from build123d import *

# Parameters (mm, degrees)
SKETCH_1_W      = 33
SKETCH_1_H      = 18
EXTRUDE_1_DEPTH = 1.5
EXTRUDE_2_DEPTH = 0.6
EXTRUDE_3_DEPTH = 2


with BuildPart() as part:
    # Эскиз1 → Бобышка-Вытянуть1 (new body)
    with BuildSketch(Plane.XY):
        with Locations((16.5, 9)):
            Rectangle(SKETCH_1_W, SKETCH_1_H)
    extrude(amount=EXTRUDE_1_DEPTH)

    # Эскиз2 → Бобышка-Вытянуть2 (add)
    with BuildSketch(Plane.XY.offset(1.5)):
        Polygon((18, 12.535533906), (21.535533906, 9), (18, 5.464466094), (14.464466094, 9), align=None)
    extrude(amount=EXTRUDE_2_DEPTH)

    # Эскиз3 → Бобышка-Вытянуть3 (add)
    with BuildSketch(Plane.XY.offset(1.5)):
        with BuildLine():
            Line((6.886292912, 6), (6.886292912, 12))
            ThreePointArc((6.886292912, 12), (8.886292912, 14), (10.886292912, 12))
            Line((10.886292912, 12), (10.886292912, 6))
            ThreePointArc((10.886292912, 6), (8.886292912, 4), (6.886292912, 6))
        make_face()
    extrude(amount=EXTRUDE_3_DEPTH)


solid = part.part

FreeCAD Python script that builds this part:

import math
import FreeCAD as App
import Part
import Sketcher
from FreeCAD import Vector

doc = App.newDocument("Part")
params = doc.addObject("Spreadsheet::Sheet", "Params")
for row, (alias, value) in enumerate([
    ("sketch1_width", "33 mm"),
    ("sketch1_height", "18 mm"),
    ("pad1_length", "1.5 mm"),
    ("sketch2_length", "5 mm"),
    ("pad2_length", "0.6 mm"),
    ("sketch3_radius", "2 mm"),
    ("sketch3_height", "6 mm"),
    ("pad3_length", "2 mm"),
], start=1):
    params.set(f"A{row}", alias)
    params.set(f"B{row}", "=" + value)
    params.setAlias(f"B{row}", alias)

body = doc.addObject("PartDesign::Body", "Body")

sketch1 = doc.addObject("Sketcher::SketchObject", "Sketch")
body.addObject(sketch1)
sketch1.AttachmentSupport = (doc.XY_Plane, [""])
sketch1.MapMode = "FlatFace"
sketch1.addGeometry(Part.LineSegment(Vector(0, 18, 0), Vector(0, 0, 0)), False)
sketch1.addGeometry(Part.LineSegment(Vector(0, 0, 0), Vector(33, 0, 0)), False)
sketch1.addGeometry(Part.LineSegment(Vector(33, 0, 0), Vector(33, 18, 0)), False)
sketch1.addGeometry(Part.LineSegment(Vector(33, 18, 0), Vector(0, 18, 0)), False)
sketch1.addConstraint(Sketcher.Constraint("Coincident", 0, 2, 1, 1))
sketch1.addConstraint(Sketcher.Constraint("Coincident", 1, 2, 2, 1))
sketch1.addConstraint(Sketcher.Constraint("Coincident", 2, 2, 3, 1))
sketch1.addConstraint(Sketcher.Constraint("Coincident", 3, 2, 0, 1))
sketch1.addConstraint(Sketcher.Constraint("Vertical", 0))
sketch1.addConstraint(Sketcher.Constraint("Horizontal", 1))
sketch1.addConstraint(Sketcher.Constraint("Vertical", 2))
sketch1.addConstraint(Sketcher.Constraint("Horizontal", 3))
sketch1.addConstraint(Sketcher.Constraint("Coincident", 0, 2, -1, 1))
sketch1.addConstraint(Sketcher.Constraint("DistanceX", 1, 1, 1, 2, 33.0))
sketch1.addConstraint(Sketcher.Constraint("DistanceY", 0, 2, 0, 1, 18.0))
sketch1.setExpression("Constraints[9]", "Params.sketch1_width")
sketch1.setExpression("Constraints[10]", "Params.sketch1_height")
pad1 = doc.addObject("PartDesign::Pad", "Pad")
body.addObject(pad1)
pad1.Profile = sketch1
pad1.setExpression("Length", "Params.pad1_length")

sketch2 = doc.addObject("Sketcher::SketchObject", "Sketch001")
body.addObject(sketch2)
sketch2.AttachmentSupport = (doc.XY_Plane, [""])
sketch2.MapMode = "FlatFace"
sketch2.AttachmentOffset = App.Placement(Vector(0, 0, 1.5), App.Rotation())
sketch2.addGeometry(Part.LineSegment(Vector(22, 9, 0), Vector(18, 13, 0)), False)
sketch2.addGeometry(Part.LineSegment(Vector(18, 13, 0), Vector(14, 9, 0)), False)
sketch2.addGeometry(Part.LineSegment(Vector(14, 9, 0), Vector(18, 5, 0)), False)
sketch2.addGeometry(Part.LineSegment(Vector(18, 5, 0), Vector(22, 9, 0)), False)
sketch2.addConstraint(Sketcher.Constraint("Coincident", 0, 2, 1, 1))
sketch2.addConstraint(Sketcher.Constraint("Coincident", 1, 2, 2, 1))
sketch2.addConstraint(Sketcher.Constraint("Coincident", 2, 2, 3, 1))
sketch2.addConstraint(Sketcher.Constraint("Coincident", 3, 2, 0, 1))
sketch2.addConstraint(Sketcher.Constraint("Perpendicular", 0, 1))
sketch2.addConstraint(Sketcher.Constraint("Perpendicular", 1, 2))
sketch2.addConstraint(Sketcher.Constraint("Perpendicular", 2, 3))
sketch2.addConstraint(Sketcher.Constraint("Horizontal", 1, 2, 3, 2))
sketch2.addConstraint(Sketcher.Constraint("Vertical", 0, 2, 2, 2))
sketch2.addConstraint(Sketcher.Constraint("Distance", 0, 5.0))
sketch2.addConstraint(Sketcher.Constraint("DistanceX", -1, 1, 0, 2, 18.0))
sketch2.addConstraint(Sketcher.Constraint("DistanceY", -1, 1, 1, 2, 9.0))
sketch2.setExpression("Constraints[9]", "Params.sketch2_length")
pad2 = doc.addObject("PartDesign::Pad", "Pad001")
body.addObject(pad2)
pad2.Profile = sketch2
pad2.setExpression("Length", "Params.pad2_length")

sketch3 = doc.addObject("Sketcher::SketchObject", "Sketch002")
body.addObject(sketch3)
sketch3.AttachmentSupport = (doc.XY_Plane, [""])
sketch3.MapMode = "FlatFace"
sketch3.AttachmentOffset = App.Placement(Vector(0, 0, 1.5), App.Rotation())
sketch3.addGeometry(Part.LineSegment(Vector(6.9, 12, 0), Vector(6.9, 6, 0)), False)
sketch3.addGeometry(Part.ArcOfCircle(Part.Circle(Vector(8.9, 6, 0), Vector(0, 0, 1), 2), math.radians(180), math.radians(360)), False)
sketch3.addGeometry(Part.LineSegment(Vector(10.9, 6, 0), Vector(10.9, 12, 0)), False)
sketch3.addGeometry(Part.ArcOfCircle(Part.Circle(Vector(8.9, 12, 0), Vector(0, 0, 1), 2), math.radians(0), math.radians(180)), False)
sketch3.addConstraint(Sketcher.Constraint("Tangent", 0, 2, 1, 1))
sketch3.addConstraint(Sketcher.Constraint("Tangent", 1, 2, 2, 1))
sketch3.addConstraint(Sketcher.Constraint("Tangent", 2, 2, 3, 1))
sketch3.addConstraint(Sketcher.Constraint("Tangent", 3, 2, 0, 1))
sketch3.addConstraint(Sketcher.Constraint("Vertical", 0))
sketch3.addConstraint(Sketcher.Constraint("Vertical", 2))
sketch3.addConstraint(Sketcher.Constraint("Radius", 1, 2.0))
sketch3.addConstraint(Sketcher.Constraint("DistanceY", 0, 2, 0, 1, 6.0))
sketch3.addConstraint(Sketcher.Constraint("DistanceY", -1, 1, 1, 3, 6.0))
sketch3.addConstraint(Sketcher.Constraint("DistanceX", -1, 1, 1, 3, 8.886293))
sketch3.setExpression("Constraints[6]", "Params.sketch3_radius")
sketch3.setExpression("Constraints[7]", "Params.sketch3_height")
pad3 = doc.addObject("PartDesign::Pad", "Pad002")
body.addObject(pad3)
pad3.Profile = sketch3
pad3.setExpression("Length", "Params.pad3_length")

doc.recompute()
